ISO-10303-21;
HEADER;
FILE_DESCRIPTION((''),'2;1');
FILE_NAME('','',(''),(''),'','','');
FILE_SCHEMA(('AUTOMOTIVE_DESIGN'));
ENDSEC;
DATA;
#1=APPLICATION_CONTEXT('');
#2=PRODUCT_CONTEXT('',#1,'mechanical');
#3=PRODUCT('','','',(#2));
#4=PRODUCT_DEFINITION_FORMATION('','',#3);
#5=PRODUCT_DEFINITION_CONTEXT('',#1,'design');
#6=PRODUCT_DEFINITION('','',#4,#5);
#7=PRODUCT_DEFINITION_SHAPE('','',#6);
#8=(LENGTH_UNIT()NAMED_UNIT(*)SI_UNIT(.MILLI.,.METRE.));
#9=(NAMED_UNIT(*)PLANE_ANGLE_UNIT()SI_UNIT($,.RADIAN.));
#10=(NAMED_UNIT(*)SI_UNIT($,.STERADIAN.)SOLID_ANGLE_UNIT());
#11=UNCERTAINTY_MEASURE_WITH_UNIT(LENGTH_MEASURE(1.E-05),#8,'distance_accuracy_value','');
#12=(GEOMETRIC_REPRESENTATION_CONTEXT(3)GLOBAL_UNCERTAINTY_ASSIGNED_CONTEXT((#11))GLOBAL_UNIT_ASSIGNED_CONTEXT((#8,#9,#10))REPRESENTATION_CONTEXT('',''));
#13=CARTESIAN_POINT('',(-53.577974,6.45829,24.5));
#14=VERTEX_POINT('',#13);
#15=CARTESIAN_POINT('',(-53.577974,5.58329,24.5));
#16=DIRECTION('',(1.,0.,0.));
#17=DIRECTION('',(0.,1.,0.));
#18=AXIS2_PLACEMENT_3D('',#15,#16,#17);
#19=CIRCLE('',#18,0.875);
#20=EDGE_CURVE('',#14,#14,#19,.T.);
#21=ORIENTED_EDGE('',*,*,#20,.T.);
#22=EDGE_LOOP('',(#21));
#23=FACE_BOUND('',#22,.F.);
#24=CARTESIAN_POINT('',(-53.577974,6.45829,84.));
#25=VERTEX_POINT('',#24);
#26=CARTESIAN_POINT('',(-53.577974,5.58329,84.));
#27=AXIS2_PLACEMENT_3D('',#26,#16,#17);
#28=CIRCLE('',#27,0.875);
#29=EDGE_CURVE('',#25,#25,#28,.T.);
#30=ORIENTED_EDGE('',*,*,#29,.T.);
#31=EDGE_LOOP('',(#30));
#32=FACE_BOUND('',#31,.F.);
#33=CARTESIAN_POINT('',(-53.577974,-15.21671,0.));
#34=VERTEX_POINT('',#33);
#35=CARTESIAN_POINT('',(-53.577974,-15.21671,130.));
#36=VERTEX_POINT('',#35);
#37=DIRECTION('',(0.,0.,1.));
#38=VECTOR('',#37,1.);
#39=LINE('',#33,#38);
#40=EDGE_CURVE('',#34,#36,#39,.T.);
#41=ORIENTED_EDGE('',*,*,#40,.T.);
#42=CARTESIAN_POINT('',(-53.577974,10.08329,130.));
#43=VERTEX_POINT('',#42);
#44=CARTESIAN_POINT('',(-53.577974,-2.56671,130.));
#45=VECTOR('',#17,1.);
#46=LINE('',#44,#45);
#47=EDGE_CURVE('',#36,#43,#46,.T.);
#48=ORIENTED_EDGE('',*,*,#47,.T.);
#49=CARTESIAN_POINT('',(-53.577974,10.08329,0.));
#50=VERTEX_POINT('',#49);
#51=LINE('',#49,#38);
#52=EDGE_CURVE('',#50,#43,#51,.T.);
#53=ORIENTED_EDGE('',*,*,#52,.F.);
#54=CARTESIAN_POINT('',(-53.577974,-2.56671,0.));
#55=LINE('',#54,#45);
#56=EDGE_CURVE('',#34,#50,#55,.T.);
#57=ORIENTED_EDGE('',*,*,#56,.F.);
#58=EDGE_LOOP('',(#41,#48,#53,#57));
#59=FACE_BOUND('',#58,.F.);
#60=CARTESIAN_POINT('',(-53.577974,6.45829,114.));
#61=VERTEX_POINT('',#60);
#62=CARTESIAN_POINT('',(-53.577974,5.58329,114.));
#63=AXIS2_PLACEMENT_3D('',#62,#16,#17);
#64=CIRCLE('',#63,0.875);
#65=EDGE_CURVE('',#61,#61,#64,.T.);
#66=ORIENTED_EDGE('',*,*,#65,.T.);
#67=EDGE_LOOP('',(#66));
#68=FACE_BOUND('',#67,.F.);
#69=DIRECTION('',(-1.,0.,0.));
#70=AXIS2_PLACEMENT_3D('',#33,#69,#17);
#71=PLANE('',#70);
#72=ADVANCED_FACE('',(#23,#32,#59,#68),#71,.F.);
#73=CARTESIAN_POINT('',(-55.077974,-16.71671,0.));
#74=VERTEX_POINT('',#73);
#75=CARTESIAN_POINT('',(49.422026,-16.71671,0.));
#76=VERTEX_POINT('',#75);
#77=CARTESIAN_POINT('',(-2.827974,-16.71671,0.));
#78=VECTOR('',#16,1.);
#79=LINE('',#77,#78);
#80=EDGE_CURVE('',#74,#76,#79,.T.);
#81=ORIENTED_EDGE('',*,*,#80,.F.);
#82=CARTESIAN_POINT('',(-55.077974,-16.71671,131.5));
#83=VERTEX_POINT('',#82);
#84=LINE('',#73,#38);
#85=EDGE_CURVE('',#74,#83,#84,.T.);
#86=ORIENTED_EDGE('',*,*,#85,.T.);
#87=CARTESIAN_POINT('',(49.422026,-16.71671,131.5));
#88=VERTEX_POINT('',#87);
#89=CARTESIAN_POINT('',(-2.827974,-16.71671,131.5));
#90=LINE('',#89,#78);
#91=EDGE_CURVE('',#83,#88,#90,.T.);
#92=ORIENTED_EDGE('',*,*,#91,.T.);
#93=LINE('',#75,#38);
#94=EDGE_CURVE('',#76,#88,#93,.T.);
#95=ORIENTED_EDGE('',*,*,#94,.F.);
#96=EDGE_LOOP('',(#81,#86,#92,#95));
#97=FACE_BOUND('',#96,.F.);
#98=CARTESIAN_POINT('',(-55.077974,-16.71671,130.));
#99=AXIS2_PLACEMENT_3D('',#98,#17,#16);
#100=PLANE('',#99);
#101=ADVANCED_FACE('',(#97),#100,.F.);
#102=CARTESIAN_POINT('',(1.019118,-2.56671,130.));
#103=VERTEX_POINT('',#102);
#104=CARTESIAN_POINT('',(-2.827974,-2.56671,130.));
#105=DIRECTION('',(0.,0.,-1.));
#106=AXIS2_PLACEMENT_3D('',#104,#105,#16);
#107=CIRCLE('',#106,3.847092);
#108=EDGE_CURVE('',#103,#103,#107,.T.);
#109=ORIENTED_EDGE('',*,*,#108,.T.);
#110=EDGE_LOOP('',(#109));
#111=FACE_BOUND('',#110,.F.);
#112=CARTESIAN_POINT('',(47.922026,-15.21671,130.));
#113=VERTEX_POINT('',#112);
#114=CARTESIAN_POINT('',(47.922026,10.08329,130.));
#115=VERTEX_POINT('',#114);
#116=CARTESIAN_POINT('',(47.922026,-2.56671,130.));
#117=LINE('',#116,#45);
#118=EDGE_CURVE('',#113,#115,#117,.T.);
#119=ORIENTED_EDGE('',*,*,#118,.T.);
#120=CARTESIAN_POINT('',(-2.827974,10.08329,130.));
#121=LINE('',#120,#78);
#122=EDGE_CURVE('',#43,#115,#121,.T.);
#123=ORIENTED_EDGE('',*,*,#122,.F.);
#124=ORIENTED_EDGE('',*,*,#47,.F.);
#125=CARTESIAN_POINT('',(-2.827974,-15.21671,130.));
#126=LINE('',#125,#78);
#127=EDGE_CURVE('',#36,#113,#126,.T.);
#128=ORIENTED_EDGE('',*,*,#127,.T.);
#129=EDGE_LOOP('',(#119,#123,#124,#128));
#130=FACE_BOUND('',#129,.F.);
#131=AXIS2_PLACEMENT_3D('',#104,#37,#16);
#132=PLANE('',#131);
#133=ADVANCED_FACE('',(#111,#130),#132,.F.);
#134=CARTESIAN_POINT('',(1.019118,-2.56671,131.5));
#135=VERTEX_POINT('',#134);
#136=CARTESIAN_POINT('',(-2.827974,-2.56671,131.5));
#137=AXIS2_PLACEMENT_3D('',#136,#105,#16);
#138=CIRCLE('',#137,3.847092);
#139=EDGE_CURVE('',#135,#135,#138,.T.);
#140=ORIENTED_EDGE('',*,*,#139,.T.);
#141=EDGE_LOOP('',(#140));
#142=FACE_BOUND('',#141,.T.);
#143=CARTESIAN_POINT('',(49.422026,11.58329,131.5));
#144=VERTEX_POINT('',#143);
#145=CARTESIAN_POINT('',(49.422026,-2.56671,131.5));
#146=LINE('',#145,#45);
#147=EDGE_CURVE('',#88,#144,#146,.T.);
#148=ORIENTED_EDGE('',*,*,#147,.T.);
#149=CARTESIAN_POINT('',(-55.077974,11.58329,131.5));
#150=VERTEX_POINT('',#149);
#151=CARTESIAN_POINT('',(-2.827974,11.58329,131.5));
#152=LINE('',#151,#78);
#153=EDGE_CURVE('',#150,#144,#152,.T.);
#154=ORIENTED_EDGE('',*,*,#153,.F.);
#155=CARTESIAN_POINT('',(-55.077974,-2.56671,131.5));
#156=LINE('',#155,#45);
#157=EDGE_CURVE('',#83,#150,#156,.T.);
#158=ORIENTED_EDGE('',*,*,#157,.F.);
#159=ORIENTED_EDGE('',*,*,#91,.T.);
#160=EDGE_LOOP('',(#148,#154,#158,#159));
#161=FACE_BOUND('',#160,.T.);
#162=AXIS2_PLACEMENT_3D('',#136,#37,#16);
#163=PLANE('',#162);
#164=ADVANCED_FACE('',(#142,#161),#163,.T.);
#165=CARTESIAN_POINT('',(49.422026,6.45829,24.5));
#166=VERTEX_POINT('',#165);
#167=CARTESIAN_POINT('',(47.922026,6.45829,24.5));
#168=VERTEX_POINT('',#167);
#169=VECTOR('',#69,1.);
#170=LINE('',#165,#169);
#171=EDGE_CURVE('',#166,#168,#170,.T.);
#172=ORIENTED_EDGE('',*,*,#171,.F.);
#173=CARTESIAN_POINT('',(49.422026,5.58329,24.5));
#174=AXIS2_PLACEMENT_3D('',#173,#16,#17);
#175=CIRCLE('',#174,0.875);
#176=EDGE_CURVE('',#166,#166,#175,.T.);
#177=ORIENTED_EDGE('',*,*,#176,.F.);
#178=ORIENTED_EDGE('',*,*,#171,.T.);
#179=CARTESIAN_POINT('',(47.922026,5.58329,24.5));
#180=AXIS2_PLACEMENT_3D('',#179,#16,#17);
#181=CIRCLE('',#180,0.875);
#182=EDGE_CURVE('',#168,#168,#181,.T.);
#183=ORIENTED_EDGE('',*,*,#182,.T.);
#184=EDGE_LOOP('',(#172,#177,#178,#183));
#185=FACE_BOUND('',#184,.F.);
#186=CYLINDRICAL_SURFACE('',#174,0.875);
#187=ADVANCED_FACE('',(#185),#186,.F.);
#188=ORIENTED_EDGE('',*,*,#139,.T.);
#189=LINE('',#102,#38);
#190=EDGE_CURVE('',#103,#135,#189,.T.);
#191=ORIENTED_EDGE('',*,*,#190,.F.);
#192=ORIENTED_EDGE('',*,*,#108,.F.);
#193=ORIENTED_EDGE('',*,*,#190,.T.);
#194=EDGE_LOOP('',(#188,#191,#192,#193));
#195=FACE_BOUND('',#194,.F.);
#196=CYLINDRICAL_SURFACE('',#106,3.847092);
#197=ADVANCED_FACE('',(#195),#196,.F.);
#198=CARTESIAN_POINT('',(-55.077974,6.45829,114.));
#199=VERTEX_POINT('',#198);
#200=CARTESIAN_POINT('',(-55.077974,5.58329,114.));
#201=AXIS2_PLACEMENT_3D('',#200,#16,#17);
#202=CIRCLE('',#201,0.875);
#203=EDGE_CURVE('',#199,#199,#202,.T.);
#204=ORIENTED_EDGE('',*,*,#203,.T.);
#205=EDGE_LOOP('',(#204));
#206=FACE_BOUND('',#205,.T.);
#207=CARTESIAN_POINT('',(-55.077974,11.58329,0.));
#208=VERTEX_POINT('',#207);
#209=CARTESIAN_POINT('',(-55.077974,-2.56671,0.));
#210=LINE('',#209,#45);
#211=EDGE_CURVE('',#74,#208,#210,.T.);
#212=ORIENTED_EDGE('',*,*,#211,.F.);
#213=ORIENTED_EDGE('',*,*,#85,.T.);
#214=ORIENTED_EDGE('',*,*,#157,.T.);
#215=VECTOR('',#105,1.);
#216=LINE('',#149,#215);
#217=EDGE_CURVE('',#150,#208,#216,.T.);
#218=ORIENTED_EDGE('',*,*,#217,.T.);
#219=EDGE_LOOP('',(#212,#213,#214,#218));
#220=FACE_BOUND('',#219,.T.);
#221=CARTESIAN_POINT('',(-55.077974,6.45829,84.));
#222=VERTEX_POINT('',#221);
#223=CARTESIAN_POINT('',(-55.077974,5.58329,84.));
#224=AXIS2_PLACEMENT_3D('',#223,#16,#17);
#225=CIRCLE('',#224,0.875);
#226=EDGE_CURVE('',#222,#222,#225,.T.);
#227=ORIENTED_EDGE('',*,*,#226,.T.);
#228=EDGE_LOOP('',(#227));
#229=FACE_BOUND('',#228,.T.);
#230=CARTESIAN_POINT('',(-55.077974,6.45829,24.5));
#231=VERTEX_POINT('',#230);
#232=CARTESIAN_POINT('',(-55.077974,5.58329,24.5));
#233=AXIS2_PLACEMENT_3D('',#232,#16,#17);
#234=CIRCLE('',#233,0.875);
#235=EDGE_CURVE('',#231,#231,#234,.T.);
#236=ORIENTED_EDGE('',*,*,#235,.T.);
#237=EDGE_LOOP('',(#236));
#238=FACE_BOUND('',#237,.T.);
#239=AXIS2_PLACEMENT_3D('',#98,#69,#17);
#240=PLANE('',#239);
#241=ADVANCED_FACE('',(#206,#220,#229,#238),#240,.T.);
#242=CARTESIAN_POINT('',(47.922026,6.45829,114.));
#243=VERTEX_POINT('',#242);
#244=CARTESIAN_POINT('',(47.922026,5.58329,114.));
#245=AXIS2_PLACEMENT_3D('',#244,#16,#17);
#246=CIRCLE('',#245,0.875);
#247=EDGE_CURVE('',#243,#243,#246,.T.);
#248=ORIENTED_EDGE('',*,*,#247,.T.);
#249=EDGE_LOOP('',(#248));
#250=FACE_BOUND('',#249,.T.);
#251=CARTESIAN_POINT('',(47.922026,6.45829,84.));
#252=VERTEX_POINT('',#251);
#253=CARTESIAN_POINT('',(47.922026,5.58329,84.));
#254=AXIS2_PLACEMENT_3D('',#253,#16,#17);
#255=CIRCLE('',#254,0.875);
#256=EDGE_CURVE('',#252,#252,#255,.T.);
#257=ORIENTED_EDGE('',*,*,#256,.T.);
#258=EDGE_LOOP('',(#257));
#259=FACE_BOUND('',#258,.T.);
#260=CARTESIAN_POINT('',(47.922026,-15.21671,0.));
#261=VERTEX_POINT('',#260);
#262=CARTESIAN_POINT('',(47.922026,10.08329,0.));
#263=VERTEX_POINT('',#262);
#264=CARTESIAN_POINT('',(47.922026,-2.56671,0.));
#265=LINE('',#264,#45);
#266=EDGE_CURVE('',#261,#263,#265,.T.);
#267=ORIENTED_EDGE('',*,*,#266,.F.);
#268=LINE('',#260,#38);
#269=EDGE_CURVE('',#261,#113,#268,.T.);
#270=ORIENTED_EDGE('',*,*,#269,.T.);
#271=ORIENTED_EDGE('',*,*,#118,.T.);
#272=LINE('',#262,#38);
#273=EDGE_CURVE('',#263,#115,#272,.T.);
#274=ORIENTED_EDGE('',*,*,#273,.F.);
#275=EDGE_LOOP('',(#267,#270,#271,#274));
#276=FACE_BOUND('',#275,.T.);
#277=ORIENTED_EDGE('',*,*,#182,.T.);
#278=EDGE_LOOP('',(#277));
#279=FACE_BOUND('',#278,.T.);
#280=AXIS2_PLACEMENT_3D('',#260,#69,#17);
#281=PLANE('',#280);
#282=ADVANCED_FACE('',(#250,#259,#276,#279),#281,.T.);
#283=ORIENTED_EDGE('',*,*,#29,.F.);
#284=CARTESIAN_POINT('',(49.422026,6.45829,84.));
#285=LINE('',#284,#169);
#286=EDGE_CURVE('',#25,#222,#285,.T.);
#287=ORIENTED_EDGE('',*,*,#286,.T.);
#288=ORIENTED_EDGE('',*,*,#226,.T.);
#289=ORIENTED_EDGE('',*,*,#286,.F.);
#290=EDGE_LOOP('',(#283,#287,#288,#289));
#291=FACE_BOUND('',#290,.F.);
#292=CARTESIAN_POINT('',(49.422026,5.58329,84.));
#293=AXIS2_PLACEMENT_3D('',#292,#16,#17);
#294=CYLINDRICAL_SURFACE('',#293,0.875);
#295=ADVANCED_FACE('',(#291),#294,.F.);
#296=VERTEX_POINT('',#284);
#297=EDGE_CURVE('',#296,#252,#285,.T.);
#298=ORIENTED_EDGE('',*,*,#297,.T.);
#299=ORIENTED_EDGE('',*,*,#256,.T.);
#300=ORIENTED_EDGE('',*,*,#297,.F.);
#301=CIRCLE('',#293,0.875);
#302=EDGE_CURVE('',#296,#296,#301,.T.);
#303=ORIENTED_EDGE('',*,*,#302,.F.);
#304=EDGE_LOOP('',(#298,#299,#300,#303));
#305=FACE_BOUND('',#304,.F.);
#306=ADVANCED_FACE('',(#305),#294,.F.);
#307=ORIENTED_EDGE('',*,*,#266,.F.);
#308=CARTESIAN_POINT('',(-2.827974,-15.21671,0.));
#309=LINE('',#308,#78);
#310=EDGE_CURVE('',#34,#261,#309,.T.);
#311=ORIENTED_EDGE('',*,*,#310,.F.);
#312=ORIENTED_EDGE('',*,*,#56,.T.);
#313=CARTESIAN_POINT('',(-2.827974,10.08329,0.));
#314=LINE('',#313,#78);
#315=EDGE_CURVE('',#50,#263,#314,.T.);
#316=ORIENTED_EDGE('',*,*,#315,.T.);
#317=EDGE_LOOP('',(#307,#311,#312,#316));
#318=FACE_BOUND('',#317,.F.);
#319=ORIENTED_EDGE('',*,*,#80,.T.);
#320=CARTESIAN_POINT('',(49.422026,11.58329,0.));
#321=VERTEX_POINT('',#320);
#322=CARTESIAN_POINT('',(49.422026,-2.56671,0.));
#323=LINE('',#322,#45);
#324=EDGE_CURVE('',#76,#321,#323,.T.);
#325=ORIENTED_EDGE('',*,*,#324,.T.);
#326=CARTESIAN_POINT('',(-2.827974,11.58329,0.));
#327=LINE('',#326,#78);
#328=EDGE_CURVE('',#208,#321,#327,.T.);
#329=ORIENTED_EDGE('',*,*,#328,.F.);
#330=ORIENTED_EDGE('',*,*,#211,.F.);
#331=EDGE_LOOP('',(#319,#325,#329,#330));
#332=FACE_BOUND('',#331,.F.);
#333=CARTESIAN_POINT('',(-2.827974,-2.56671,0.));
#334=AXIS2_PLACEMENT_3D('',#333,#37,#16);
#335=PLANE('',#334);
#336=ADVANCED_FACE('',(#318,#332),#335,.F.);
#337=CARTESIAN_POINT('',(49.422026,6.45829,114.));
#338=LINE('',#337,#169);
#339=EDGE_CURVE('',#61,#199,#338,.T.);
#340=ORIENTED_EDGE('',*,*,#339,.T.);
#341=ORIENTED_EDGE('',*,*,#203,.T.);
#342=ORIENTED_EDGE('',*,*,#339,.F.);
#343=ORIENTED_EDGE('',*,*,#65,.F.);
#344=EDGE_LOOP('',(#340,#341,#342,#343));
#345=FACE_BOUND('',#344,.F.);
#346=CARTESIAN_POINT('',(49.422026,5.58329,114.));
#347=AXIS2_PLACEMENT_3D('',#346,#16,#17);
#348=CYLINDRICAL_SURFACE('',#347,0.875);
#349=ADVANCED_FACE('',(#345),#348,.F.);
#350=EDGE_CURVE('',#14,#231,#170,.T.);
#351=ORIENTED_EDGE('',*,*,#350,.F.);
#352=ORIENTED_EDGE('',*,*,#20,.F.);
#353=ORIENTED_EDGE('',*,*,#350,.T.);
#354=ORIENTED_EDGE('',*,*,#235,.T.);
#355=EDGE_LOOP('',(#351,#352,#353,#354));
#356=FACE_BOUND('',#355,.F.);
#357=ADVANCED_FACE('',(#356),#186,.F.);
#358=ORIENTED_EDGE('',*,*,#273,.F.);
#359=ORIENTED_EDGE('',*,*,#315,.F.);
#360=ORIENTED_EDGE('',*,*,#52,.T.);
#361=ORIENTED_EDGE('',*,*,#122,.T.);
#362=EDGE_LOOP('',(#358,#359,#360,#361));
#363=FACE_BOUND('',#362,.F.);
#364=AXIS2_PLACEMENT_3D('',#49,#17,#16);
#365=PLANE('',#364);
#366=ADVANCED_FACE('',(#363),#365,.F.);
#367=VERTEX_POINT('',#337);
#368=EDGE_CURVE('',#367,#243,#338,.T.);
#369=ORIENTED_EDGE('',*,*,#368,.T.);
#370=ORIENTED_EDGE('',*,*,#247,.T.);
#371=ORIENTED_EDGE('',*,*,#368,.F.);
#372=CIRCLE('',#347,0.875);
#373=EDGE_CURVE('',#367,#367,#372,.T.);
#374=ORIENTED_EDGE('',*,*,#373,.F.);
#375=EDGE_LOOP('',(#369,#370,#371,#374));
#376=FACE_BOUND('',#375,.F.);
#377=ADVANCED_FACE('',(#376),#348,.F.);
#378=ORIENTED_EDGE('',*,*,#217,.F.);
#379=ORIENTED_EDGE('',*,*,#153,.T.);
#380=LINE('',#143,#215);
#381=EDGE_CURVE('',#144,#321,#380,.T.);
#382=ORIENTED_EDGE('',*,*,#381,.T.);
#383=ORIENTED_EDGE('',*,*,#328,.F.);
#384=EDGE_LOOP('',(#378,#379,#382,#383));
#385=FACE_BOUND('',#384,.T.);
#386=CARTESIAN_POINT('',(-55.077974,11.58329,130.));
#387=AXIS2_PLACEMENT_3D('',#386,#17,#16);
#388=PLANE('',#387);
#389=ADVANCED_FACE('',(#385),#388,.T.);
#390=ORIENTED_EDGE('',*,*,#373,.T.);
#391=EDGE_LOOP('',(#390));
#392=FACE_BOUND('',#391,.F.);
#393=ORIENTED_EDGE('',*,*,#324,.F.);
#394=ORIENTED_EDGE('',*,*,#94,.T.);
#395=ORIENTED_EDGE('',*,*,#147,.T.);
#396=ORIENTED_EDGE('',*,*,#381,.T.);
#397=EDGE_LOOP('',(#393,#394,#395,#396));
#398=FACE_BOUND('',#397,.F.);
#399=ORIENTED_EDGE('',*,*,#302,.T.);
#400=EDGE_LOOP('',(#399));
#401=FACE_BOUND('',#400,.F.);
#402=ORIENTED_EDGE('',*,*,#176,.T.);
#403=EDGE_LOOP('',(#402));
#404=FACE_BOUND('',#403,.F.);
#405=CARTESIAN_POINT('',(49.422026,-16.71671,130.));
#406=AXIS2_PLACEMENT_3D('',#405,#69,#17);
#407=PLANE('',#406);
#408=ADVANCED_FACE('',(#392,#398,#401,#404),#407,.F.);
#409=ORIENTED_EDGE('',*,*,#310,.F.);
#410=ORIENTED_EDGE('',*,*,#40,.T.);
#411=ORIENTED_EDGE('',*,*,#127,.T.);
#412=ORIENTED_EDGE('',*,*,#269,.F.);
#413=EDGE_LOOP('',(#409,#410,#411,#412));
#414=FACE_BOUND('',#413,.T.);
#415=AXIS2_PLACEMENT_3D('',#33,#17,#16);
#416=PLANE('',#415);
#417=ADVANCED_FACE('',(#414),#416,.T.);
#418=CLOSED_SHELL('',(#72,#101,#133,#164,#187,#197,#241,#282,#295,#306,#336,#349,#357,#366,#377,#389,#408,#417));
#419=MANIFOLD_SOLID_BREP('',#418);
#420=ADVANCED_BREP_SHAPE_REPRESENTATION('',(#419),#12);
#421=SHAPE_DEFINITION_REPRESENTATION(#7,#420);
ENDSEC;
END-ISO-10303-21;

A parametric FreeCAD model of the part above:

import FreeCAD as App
import Part
import Sketcher

V = App.Vector
Q = App.Units.Quantity

doc = App.newDocument("Part")
body = doc.addObject("PartDesign::Body", "Body")

sketch1 = doc.addObject("Sketcher::SketchObject", "Sketch")
body.addObject(sketch1)
sketch1.AttachmentSupport = (doc.XY_Plane, [""])
sketch1.MapMode = "FlatFace"
sketch1.addGeometry([
    Part.LineSegment(V(-55, 12, 0), V(-55, -17, 0)),
    Part.LineSegment(V(-55, -17, 0), V(49, -17, 0)),
    Part.LineSegment(V(49, -17, 0), V(49, 12, 0)),
    Part.LineSegment(V(49, 12, 0), V(-55, 12, 0)),
    Part.LineSegment(V(48, -15, 0), V(-54, -15, 0)),
    Part.LineSegment(V(-54, -15, 0), V(-54, 10, 0)),
    Part.LineSegment(V(-54, 10, 0), V(48, 10, 0)),
    Part.LineSegment(V(48, 10, 0), V(48, -15, 0)),
], False)
sketch1.addConstraint([
    Sketcher.Constraint("Coincident", 0, 2, 1, 1),
    Sketcher.Constraint("Coincident", 1, 2, 2, 1),
    Sketcher.Constraint("Coincident", 2, 2, 3, 1),
    Sketcher.Constraint("Coincident", 3, 2, 0, 1),
    Sketcher.Constraint("Coincident", 4, 2, 5, 1),
    Sketcher.Constraint("Coincident", 5, 2, 6, 1),
    Sketcher.Constraint("Coincident", 6, 2, 7, 1),
    Sketcher.Constraint("Coincident", 7, 2, 4, 1),
    Sketcher.Constraint("Vertical", 0),
    Sketcher.Constraint("Horizontal", 1),
    Sketcher.Constraint("Vertical", 2),
    Sketcher.Constraint("Horizontal", 3),
    Sketcher.Constraint("Horizontal", 4),
    Sketcher.Constraint("Vertical", 5),
    Sketcher.Constraint("Horizontal", 6),
    Sketcher.Constraint("Vertical", 7),
    Sketcher.Constraint("DistanceX", 1, 1, 1, 2, Q("104.5 mm")),
    Sketcher.Constraint("DistanceX", 4, 2, 4, 1, Q("101.5 mm")),
    Sketcher.Constraint("DistanceY", 0, 2, 0, 1, Q("28.3 mm")),
    Sketcher.Constraint("DistanceY", 5, 1, 5, 2, Q("25.3 mm")),
    Sketcher.Constraint("DistanceX", 4, 2, 1, 2, Q("103 mm")),
    Sketcher.Constraint("DistanceY", 0, 2, 4, 2, Q("1.5 mm")),
    Sketcher.Constraint("DistanceY", 0, 2, -1, 1, Q("16.71671 mm")),
    Sketcher.Constraint("DistanceX", 0, 2, -1, 1, Q("55.077974 mm")),
])
pad1 = doc.addObject("PartDesign::Pad", "Pad")
body.addObject(pad1)
pad1.Profile = sketch1
pad1.Length = 130

sketch2 = doc.addObject("Sketcher::SketchObject", "Sketch001")
body.addObject(sketch2)
sketch2.AttachmentSupport = (doc.YZ_Plane, [""])
sketch2.MapMode = "FlatFace"
sketch2.AttachmentOffset = App.Placement(V(0, 0, 49.422026), App.Rotation())
sketch2.addGeometry([
    Part.Circle(V(5.6, 114, 0), V(0, 0, 1), 0.9),
    Part.Circle(V(5.6, 84, 0), V(0, 0, 1), 0.9),
    Part.Circle(V(5.6, 24.5, 0), V(0, 0, 1), 0.9),
], False)
sketch2.addConstraint([
    Sketcher.Constraint("Equal", 0, 1),
    Sketcher.Constraint("Equal", 1, 2),
    Sketcher.Constraint("Vertical", 0, 3, 1, 3),
    Sketcher.Constraint("Vertical", 1, 3, 2, 3),
    Sketcher.Constraint("Diameter", 0, Q("1.75 mm")),
    Sketcher.Constraint("DistanceY", -1, 1, 0, 3, Q("114 mm")),
    Sketcher.Constraint("DistanceY", -1, 1, 1, 3, Q("84 mm")),
    Sketcher.Constraint("DistanceY", -1, 1, 2, 3, Q("24.5 mm")),
    Sketcher.Constraint("DistanceX", -1, 1, 0, 3, Q("5.58329 mm")),
])
pocket1 = doc.addObject("PartDesign::Pocket", "Pocket")
body.addObject(pocket1)
pocket1.Profile = sketch2
pocket1.Length = 130

sketch3 = doc.addObject("Sketcher::SketchObject", "Sketch002")
body.addObject(sketch3)
sketch3.AttachmentSupport = (doc.XY_Plane, [""])
sketch3.MapMode = "FlatFace"
sketch3.AttachmentOffset = App.Placement(V(0, 0, 130), App.Rotation())
sketch3.addGeometry([
    Part.LineSegment(V(-55, 12, 0), V(-55, -17, 0)),
    Part.LineSegment(V(-55, -17, 0), V(49, -17, 0)),
    Part.LineSegment(V(49, -17, 0), V(49, 12, 0)),
    Part.LineSegment(V(49, 12, 0), V(-55, 12, 0)),
], False)
sketch3.addConstraint([
    Sketcher.Constraint("Coincident", 0, 2, 1, 1),
    Sketcher.Constraint("Coincident", 1, 2, 2, 1),
    Sketcher.Constraint("Coincident", 2, 2, 3, 1),
    Sketcher.Constraint("Coincident", 3, 2, 0, 1),
    Sketcher.Constraint("Vertical", 0),
    Sketcher.Constraint("Horizontal", 1),
    Sketcher.Constraint("Vertical", 2),
    Sketcher.Constraint("Horizontal", 3),
    Sketcher.Constraint("DistanceX", 1, 1, 1, 2, Q("104.5 mm")),
    Sketcher.Constraint("DistanceY", 0, 2, 0, 1, Q("28.3 mm")),
    Sketcher.Constraint("DistanceY", 0, 2, -1, 1, Q("16.71671 mm")),
    Sketcher.Constraint("DistanceX", 0, 2, -1, 1, Q("55.077974 mm")),
])
pad2 = doc.addObject("PartDesign::Pad", "Pad001")
body.addObject(pad2)
pad2.Profile = sketch3
pad2.Length = 1.5

sketch4 = doc.addObject("Sketcher::SketchObject", "Sketch003")
body.addObject(sketch4)
sketch4.AttachmentSupport = (doc.XY_Plane, [""])
sketch4.MapMode = "FlatFace"
sketch4.AttachmentOffset = App.Placement(V(0, 0, 130), App.Rotation())
sketch4.addGeometry(Part.Circle(V(-2.8, -2.6, 0), V(0, 0, 1), 3.8), False)
sketch4.addConstraint([
    Sketcher.Constraint("Diameter", 0, Q("7.694184 mm")),
    Sketcher.Constraint("DistanceY", 0, 3, -1, 1, Q("2.56671 mm")),
    Sketcher.Constraint("DistanceX", 0, 3, -1, 1, Q("2.827974 mm")),
])
pocket2 = doc.addObject("PartDesign::Pocket", "Pocket001")
body.addObject(pocket2)
pocket2.Profile = sketch4
pocket2.Length = 3
pocket2.Reversed = True

doc.recompute()
